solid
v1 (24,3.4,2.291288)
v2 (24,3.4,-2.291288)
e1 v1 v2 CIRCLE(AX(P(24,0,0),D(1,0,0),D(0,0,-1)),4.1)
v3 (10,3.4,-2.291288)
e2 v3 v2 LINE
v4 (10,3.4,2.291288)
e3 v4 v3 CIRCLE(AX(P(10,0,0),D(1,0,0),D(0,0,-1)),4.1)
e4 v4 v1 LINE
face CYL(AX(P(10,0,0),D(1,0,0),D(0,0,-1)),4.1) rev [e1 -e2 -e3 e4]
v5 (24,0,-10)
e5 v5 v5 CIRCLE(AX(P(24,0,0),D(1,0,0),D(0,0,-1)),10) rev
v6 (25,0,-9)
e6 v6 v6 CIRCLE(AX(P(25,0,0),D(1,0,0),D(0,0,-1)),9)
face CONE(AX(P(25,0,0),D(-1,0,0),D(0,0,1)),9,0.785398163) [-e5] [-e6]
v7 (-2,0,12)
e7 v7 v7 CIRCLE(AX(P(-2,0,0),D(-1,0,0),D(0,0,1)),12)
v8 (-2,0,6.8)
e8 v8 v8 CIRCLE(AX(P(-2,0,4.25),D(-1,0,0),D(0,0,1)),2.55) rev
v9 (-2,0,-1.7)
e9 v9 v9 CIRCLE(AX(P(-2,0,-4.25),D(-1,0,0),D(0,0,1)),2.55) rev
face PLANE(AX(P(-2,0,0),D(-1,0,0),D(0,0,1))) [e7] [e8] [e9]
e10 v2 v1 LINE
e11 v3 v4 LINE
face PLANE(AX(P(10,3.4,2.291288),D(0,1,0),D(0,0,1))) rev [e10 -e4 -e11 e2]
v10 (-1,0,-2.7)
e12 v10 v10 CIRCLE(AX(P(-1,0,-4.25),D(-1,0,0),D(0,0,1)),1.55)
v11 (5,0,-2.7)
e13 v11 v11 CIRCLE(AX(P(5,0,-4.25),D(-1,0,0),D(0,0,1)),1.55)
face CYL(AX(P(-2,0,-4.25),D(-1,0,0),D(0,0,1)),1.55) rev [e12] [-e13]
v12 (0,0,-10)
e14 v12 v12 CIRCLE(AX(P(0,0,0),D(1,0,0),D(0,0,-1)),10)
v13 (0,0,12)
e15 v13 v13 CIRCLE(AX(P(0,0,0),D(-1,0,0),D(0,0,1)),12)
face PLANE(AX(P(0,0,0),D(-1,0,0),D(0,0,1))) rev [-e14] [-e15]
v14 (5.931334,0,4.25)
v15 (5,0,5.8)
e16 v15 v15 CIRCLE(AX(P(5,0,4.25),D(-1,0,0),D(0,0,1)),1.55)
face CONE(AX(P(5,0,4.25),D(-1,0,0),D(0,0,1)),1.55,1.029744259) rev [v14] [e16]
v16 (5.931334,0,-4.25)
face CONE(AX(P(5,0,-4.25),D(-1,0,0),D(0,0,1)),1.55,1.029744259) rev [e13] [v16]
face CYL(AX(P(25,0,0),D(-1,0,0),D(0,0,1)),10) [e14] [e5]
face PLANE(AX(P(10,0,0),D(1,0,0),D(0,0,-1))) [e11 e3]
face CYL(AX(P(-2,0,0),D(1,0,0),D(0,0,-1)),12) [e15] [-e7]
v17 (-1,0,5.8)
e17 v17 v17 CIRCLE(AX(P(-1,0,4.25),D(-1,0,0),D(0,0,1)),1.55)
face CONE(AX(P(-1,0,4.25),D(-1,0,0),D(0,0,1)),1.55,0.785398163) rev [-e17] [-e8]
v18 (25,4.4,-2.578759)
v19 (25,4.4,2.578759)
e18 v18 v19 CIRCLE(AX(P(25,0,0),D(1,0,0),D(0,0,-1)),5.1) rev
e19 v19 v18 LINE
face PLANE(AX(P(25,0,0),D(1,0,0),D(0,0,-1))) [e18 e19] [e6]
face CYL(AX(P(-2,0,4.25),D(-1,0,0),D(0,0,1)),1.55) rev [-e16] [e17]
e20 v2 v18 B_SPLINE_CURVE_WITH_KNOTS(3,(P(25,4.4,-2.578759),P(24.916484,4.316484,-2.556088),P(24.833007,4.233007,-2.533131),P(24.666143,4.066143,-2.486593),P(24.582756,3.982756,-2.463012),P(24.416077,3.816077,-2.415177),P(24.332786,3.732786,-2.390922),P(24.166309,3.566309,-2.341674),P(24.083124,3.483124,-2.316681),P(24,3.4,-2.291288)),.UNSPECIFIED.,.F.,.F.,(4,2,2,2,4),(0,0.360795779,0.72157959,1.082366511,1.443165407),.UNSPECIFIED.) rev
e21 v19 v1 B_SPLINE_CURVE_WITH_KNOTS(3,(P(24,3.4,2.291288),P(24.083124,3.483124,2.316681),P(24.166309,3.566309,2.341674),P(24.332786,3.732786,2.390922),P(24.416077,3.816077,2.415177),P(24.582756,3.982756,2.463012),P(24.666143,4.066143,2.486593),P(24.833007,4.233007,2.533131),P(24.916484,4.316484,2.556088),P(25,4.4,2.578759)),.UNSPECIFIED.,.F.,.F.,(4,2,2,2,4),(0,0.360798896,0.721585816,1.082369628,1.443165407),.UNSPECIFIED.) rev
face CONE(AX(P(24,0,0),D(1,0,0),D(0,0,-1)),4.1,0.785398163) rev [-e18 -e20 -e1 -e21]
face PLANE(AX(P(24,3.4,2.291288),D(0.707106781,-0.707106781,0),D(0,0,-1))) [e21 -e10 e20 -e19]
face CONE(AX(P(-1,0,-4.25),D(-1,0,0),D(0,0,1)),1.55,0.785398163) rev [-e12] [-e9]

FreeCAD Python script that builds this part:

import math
import FreeCAD as App
import Part
import Sketcher


def edges_at(feature, points):
    """Names of the edges that pass closest to the given points."""
    edges = feature.Shape.Edges
    near = lambda p: min(range(len(edges)), key=lambda i: edges[i].distToShape(Part.Vertex(*p))[0])
    return sorted({f"Edge{near(p) + 1}" for p in points})

doc = App.newDocument("Part")
body = doc.addObject("PartDesign::Body", "Body")

# Sketch on YZ plane
sketch1 = body.newObject("Sketcher::SketchObject", "Sketch")
sketch1.AttachmentSupport = (doc.getObject("YZ_Plane"), [""])
sketch1.MapMode = "FlatFace"
sketch1.addGeometry(Part.Circle(App.Vector(0, 0, 0), App.Vector(0, 0, 1), 10), False)
sketch1.addConstraint([
    Sketcher.Constraint("Coincident", 0, 3, -1, 1),
    Sketcher.Constraint("Diameter", 0, 20.0),
])
pad1 = body.newObject("PartDesign::Pad", "Pad")
pad1.Profile = sketch1
pad1.Length = 25

# Sketch on YZ plane
sketch2 = body.newObject("Sketcher::SketchObject", "Sketch001")
sketch2.AttachmentSupport = (doc.getObject("YZ_Plane"), [""])
sketch2.MapMode = "FlatFace"
sketch2.addGeometry(Part.Circle(App.Vector(0, 0, 0), App.Vector(0, 0, 1), 12), False)
sketch2.addConstraint([
    Sketcher.Constraint("Coincident", 0, 3, -1, 1),
    Sketcher.Constraint("Diameter", 0, 24.0),
])
pad2 = body.newObject("PartDesign::Pad", "Pad001")
pad2.Profile = sketch2
pad2.Length = 2
pad2.Reversed = True

# Sketch on YZ plane
sketch3 = body.newObject("Sketcher::SketchObject", "Sketch002")
sketch3.AttachmentSupport = (doc.getObject("YZ_Plane"), [""])
sketch3.MapMode = "FlatFace"
sketch3.AttachmentOffset = App.Placement(App.Vector(0, 0, 25), App.Rotation())
sketch3.addGeometry([
    Part.LineSegment(App.Vector(3.4, -2.291288, 0), App.Vector(3.4, 2.291288, 0)),
    Part.ArcOfCircle(Part.Circle(App.Vector(0, 0, 0), App.Vector(0, 0, 1), 4.1), math.radians(33.976353), math.radians(326.023647)),
], False)
sketch3.addConstraint([
    Sketcher.Constraint("Coincident", 0, 1, 1, 2),
    Sketcher.Constraint("Coincident", 1, 1, 0, 2),
    Sketcher.Constraint("Vertical", 0),
    Sketcher.Constraint("Coincident", 1, 3, -1, 1),
    Sketcher.Constraint("Radius", 1, 4.1),
    Sketcher.Constraint("DistanceX", -1, 1, 0, 1, 3.4),
])
pocket1 = body.newObject("PartDesign::Pocket", "Pocket")
pocket1.Profile = sketch3
pocket1.Length = 15
doc.recompute()

chamfer = body.newObject("PartDesign::Chamfer", "Chamfer")
chamfer.Base = (pocket1, edges_at(pocket1, [(25, -4.1, 0), (25, 3.4, 0)]))
chamfer.Size = 1
doc.recompute()

chamfer2 = body.newObject("PartDesign::Chamfer", "Chamfer001")
chamfer2.Base = (chamfer, edges_at(chamfer, [(25, 0, 10)]))
chamfer2.Size = 1

# Sketch on YZ plane
sketch4 = body.newObject("Sketcher::SketchObject", "Sketch003")
sketch4.AttachmentSupport = (doc.getObject("YZ_Plane"), [""])
sketch4.MapMode = "FlatFace"
sketch4.AttachmentOffset = App.Placement(App.Vector(0, 0, -2), App.Rotation())
sketch4.addGeometry([
    Part.Circle(App.Vector(0, 4.25, 0), App.Vector(0, 0, 1), 1.55),
    Part.Circle(App.Vector(0, -4.25, 0), App.Vector(0, 0, 1), 1.55),
], False)
sketch4.addConstraint([
    Sketcher.Constraint("Equal", 0, 1),
    Sketcher.Constraint("Symmetric", 0, 3, 1, 3, -1, 1),
    Sketcher.Constraint("PointOnObject", 0, 3, -2),
    Sketcher.Constraint("Diameter", 0, 3.1),
    Sketcher.Constraint("DistanceY", 1, 3, 0, 3, 8.5),
])
doc.recompute()
hole = body.newObject("PartDesign::Hole", "Hole")
hole.Profile = sketch4
hole.ThreadType = "None"
hole.Diameter = 3.1
hole.DepthType = "Dimension"
hole.Depth = 7
hole.DrillPoint = "Angled"
hole.DrillPointAngle = 118
hole.Reversed = True
doc.recompute()

chamfer3 = body.newObject("PartDesign::Chamfer", "Chamfer002")
chamfer3.Base = (hole, edges_at(hole, [(-2, 0, 5.8), (-2, 0, -2.7)]))
chamfer3.Size = 1

doc.recompute()
